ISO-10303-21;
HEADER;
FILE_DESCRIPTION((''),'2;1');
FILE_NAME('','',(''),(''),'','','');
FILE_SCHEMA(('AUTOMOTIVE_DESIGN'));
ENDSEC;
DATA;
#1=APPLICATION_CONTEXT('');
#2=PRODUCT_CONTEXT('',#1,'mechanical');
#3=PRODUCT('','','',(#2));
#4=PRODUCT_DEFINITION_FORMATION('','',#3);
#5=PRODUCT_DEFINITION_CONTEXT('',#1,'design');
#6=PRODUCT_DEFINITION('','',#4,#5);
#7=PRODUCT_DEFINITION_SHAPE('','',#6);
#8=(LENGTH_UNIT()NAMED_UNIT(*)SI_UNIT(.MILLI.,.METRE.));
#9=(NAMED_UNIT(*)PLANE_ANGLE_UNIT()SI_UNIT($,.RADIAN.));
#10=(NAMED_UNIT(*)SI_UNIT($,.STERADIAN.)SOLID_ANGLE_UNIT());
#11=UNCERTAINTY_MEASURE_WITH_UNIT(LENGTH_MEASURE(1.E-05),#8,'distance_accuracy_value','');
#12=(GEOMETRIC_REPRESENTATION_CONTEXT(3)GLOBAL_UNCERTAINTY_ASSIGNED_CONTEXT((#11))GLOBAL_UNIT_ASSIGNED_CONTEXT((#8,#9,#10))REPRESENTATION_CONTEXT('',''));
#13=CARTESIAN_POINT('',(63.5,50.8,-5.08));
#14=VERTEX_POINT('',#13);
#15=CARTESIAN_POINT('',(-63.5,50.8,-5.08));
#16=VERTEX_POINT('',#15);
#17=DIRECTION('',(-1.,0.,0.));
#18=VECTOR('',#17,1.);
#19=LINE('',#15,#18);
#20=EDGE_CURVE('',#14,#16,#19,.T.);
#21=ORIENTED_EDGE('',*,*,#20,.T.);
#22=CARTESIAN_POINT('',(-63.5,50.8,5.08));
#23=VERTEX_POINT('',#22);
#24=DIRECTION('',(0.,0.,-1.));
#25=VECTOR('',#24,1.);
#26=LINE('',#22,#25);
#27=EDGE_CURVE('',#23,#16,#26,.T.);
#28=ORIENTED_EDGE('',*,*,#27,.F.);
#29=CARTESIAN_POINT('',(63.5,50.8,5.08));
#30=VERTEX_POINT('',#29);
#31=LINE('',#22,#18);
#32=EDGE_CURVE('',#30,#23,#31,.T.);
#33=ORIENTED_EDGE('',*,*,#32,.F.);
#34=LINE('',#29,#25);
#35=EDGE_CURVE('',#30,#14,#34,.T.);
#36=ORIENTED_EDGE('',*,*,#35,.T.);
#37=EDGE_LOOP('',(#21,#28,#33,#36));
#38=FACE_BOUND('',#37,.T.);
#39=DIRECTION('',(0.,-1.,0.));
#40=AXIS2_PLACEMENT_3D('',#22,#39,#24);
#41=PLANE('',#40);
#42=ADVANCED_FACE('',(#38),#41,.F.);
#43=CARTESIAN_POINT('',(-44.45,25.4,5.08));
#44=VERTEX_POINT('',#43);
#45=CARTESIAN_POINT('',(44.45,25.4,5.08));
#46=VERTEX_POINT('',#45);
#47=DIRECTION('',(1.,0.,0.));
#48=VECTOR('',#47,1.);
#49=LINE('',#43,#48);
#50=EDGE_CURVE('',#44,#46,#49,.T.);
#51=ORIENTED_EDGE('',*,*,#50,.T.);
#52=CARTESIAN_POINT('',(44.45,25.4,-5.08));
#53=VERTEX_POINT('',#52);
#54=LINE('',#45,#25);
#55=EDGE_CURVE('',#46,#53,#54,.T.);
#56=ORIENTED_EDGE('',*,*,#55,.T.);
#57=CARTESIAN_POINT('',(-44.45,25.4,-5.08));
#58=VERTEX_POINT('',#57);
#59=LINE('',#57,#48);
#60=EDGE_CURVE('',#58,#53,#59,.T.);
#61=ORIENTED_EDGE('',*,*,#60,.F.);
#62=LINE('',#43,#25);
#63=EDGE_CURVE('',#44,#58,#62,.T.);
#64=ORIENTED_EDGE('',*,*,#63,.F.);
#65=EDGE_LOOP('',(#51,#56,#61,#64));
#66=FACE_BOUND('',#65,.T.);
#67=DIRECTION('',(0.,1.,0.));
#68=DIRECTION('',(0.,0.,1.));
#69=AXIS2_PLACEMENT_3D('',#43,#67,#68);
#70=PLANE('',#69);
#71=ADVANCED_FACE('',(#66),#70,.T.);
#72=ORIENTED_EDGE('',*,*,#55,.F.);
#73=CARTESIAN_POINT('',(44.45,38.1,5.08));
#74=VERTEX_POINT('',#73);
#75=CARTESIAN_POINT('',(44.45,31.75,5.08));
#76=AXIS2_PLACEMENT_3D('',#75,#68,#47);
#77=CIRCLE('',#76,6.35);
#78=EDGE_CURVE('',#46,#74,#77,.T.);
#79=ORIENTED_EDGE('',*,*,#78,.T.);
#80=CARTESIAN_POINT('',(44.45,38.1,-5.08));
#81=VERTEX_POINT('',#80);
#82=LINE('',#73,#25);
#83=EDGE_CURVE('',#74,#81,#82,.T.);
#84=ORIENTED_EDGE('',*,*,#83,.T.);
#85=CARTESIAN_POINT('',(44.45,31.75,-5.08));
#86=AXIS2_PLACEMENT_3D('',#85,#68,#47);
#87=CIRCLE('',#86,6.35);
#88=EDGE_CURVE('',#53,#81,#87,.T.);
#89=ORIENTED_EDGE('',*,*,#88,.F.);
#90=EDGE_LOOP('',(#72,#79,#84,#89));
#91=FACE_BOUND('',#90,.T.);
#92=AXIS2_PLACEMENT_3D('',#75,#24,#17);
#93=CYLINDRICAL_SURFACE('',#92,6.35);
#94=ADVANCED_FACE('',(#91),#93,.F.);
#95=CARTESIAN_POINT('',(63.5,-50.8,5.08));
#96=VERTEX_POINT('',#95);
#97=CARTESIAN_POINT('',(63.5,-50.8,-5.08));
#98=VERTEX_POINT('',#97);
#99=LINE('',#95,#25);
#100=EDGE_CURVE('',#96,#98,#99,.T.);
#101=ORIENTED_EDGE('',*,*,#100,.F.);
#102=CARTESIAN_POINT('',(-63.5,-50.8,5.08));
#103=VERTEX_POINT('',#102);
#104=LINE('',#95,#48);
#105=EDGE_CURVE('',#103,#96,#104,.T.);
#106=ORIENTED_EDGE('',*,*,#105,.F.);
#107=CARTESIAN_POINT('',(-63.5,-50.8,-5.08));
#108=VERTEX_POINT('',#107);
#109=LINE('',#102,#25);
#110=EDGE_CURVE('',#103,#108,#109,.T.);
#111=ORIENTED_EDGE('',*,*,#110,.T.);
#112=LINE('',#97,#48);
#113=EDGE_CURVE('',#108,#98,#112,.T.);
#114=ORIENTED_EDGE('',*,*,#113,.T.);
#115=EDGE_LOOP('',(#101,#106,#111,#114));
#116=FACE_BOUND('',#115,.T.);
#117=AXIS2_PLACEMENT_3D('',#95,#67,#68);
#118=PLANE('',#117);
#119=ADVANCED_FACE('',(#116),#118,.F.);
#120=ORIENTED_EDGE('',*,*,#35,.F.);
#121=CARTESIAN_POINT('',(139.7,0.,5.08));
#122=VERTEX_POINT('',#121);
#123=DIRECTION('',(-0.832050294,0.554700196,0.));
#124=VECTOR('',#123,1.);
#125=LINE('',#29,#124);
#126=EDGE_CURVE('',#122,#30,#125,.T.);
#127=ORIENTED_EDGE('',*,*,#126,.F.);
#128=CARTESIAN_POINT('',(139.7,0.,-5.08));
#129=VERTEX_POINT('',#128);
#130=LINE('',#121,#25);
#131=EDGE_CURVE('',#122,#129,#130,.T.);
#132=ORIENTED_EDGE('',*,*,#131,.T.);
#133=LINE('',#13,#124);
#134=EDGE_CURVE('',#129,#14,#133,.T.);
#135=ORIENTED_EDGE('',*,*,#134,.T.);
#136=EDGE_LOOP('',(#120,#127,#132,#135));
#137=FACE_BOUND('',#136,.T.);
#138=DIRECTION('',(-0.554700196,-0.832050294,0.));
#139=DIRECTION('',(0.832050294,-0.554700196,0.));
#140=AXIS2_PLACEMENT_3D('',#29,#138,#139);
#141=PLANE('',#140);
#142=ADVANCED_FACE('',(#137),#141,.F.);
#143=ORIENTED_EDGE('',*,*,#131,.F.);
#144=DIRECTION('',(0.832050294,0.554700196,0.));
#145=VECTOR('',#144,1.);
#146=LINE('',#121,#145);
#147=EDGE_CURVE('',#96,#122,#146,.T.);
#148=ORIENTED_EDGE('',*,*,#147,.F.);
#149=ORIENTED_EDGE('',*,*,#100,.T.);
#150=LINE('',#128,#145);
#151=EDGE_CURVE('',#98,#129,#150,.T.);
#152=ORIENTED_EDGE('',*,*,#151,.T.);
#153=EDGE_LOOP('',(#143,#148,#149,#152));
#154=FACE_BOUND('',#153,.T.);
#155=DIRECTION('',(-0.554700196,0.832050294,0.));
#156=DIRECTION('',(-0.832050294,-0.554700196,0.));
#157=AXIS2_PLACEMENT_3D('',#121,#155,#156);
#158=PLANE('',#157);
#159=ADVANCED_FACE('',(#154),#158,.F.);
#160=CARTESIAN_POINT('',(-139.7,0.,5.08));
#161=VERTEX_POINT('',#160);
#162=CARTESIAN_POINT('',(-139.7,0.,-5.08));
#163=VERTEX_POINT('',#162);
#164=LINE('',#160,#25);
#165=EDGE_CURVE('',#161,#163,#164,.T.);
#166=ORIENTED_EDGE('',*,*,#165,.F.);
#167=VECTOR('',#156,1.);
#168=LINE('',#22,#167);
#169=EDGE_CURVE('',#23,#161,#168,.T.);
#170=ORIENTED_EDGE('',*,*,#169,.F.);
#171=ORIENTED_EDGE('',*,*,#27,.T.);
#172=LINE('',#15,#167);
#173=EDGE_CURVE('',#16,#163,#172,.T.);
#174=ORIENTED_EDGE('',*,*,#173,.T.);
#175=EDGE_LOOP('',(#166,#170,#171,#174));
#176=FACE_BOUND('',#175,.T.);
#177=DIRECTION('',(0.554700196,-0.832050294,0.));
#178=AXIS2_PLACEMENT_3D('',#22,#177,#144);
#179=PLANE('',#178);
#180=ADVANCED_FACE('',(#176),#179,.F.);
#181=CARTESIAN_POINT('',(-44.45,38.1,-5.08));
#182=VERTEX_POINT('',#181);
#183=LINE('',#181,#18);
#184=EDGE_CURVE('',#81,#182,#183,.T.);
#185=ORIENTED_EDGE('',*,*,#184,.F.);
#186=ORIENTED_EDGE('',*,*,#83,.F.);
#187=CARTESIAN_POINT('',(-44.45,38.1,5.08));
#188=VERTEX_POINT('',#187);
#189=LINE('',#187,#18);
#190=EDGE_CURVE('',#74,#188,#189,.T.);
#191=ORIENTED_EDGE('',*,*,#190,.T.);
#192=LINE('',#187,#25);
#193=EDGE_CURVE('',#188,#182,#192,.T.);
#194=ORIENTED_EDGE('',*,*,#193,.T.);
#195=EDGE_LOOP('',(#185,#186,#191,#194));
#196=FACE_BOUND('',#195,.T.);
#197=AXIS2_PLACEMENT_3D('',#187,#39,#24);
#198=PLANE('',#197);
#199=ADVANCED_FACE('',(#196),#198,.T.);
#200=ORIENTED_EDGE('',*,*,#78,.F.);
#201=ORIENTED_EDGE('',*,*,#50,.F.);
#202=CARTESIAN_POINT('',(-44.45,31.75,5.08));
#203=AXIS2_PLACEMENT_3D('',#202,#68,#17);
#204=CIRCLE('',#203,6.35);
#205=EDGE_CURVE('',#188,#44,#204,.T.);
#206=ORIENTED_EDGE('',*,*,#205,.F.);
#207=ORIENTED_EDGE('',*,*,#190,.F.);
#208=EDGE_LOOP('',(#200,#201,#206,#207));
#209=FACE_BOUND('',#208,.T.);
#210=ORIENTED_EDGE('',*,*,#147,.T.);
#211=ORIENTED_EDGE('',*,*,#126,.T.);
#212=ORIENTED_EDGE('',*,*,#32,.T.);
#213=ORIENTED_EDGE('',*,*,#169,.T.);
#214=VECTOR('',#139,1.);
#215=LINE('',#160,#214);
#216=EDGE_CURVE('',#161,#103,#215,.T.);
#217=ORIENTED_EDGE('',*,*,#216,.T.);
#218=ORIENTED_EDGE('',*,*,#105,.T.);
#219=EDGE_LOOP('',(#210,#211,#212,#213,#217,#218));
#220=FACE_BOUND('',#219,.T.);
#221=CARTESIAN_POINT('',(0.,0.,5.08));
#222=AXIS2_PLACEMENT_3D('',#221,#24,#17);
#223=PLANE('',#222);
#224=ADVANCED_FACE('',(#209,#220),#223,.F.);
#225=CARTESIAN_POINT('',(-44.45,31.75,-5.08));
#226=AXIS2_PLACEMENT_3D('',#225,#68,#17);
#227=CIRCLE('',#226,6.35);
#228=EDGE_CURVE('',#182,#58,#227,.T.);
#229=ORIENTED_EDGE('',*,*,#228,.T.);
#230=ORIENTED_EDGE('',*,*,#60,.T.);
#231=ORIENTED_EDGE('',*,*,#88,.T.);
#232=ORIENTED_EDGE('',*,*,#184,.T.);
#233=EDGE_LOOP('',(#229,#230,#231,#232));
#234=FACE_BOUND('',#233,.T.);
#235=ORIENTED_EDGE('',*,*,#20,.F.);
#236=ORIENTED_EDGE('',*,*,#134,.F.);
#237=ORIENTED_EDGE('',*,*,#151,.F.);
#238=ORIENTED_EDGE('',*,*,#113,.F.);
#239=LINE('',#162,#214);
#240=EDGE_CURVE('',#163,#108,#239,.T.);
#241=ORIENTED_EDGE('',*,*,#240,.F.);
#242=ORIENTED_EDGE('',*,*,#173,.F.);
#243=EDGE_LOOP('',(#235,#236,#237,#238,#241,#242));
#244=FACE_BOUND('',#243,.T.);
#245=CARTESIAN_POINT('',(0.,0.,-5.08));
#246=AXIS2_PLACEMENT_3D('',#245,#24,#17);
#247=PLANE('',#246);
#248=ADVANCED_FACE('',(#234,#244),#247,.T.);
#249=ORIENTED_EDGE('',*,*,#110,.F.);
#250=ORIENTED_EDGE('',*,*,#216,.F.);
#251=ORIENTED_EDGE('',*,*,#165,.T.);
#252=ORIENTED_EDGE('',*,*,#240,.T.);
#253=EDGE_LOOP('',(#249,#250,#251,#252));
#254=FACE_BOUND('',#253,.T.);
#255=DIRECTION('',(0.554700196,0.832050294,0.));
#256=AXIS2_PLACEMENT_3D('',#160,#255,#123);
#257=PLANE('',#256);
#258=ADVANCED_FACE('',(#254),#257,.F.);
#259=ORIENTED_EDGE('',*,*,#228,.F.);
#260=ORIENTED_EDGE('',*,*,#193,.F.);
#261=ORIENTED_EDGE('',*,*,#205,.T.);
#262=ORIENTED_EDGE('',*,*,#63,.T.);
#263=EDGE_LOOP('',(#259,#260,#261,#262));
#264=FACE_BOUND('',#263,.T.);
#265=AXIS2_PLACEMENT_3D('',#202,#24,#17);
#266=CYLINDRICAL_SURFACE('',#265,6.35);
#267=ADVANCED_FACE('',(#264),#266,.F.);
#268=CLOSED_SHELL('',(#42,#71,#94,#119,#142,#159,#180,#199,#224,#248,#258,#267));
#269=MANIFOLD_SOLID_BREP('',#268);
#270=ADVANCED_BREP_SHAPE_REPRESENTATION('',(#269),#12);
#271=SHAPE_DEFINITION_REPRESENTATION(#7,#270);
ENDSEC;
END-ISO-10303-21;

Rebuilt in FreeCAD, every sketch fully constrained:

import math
import FreeCAD as App
import Part
import Sketcher
Q = App.Units.Quantity

doc = App.newDocument("Part")
params = doc.addObject("Spreadsheet::Sheet", "Params")
for row, (alias, value) in enumerate([
    ("sketch1_width", "5 in"),
    ("sketch1_radius", "0.25 in"),
    ("sketch1_width2", "3.5 in"),
    ("pad1_length", "0.4 in"),
], start=1):
    params.set(f"A{row}", alias)
    params.set(f"B{row}", "=" + value)
    params.setAlias(f"B{row}", alias)

body = doc.addObject("PartDesign::Body", "Body")

# Sketch on XY plane
sketch1 = doc.addObject("Sketcher::SketchObject", "Sketch")
body.addObject(sketch1)
sketch1.AttachmentSupport = (doc.XY_Plane, [""])
sketch1.MapMode = "FlatFace"
sketch1.addGeometry([
    Part.LineSegment(App.Vector(64, 51, 0), App.Vector(-64, 51, 0)),  # 0
    Part.LineSegment(App.Vector(-64, 51, 0), App.Vector(-140, 0, 0)),  # 1
    Part.LineSegment(App.Vector(-140, 0, 0), App.Vector(-64, -51, 0)),  # 2
    Part.LineSegment(App.Vector(-64, -51, 0), App.Vector(64, -51, 0)),  # 3
    Part.LineSegment(App.Vector(64, -51, 0), App.Vector(140, 0, 0)),  # 4
    Part.LineSegment(App.Vector(140, 0, 0), App.Vector(64, 51, 0)),  # 5
    Part.LineSegment(App.Vector(-44, 38, 0), App.Vector(44, 38, 0)),  # 6
    Part.ArcOfCircle(Part.Circle(App.Vector(44, 32, 0), App.Vector(0, 0, 1), 6), math.radians(-90), math.radians(90)),  # 7
    Part.LineSegment(App.Vector(44, 25, 0), App.Vector(-44, 25, 0)),  # 8
    Part.ArcOfCircle(Part.Circle(App.Vector(-44, 32, 0), App.Vector(0, 0, 1), 6), math.radians(90), math.radians(270)),  # 9
], False)
sketch1.addConstraint([
    Sketcher.Constraint("Coincident", 0, 2, 1, 1),
    Sketcher.Constraint("Coincident", 1, 2, 2, 1),
    Sketcher.Constraint("Coincident", 2, 2, 3, 1),
    Sketcher.Constraint("Coincident", 3, 2, 4, 1),
    Sketcher.Constraint("Coincident", 4, 2, 5, 1),
    Sketcher.Constraint("Coincident", 5, 2, 0, 1),
    Sketcher.Constraint("Tangent", 6, 2, 7, 2),
    Sketcher.Constraint("Tangent", 7, 1, 8, 1),
    Sketcher.Constraint("Tangent", 8, 2, 9, 2),
    Sketcher.Constraint("Tangent", 9, 1, 6, 1),
    Sketcher.Constraint("Horizontal", 0),
    Sketcher.Constraint("Horizontal", 3),
    Sketcher.Constraint("Horizontal", 6),
    Sketcher.Constraint("Horizontal", 8),
    Sketcher.Constraint("Symmetric", 0, 2, 3, 2, -1, 1),
    Sketcher.Constraint("Symmetric", 1, 2, 4, 2, -1, 1),
    Sketcher.Constraint("PointOnObject", 1, 2, -1),
    Sketcher.Constraint("Parallel", 2, 5),
    Sketcher.Constraint("Vertical", 0, 2, 2, 2),
    Sketcher.Constraint("DistanceX", 0, 2, 0, 1, Q("5 in")),
    Sketcher.Constraint("Radius", 7, Q("0.25 in")),
    Sketcher.Constraint("DistanceX", 6, 1, 6, 2, Q("3.5 in")),
    Sketcher.Constraint("DistanceY", -1, 1, 0, 2, Q("2 in")),
    Sketcher.Constraint("DistanceY", -1, 1, 7, 1, Q("1 in")),
    Sketcher.Constraint("DistanceX", 1, 2, 0, 2, Q("3 in")),
    Sketcher.Constraint("DistanceX", -1, 1, 7, 3, Q("1.75 in")),
])
sketch1.setExpression("Constraints[19]", "Params.sketch1_width")
sketch1.setExpression("Constraints[20]", "Params.sketch1_radius")
sketch1.setExpression("Constraints[21]", "Params.sketch1_width2")
pad1 = doc.addObject("PartDesign::Pad", "Pad")
body.addObject(pad1)
pad1.Profile = sketch1
pad1.setExpression("Length", "Params.pad1_length")
pad1.Midplane = True

doc.recompute()
